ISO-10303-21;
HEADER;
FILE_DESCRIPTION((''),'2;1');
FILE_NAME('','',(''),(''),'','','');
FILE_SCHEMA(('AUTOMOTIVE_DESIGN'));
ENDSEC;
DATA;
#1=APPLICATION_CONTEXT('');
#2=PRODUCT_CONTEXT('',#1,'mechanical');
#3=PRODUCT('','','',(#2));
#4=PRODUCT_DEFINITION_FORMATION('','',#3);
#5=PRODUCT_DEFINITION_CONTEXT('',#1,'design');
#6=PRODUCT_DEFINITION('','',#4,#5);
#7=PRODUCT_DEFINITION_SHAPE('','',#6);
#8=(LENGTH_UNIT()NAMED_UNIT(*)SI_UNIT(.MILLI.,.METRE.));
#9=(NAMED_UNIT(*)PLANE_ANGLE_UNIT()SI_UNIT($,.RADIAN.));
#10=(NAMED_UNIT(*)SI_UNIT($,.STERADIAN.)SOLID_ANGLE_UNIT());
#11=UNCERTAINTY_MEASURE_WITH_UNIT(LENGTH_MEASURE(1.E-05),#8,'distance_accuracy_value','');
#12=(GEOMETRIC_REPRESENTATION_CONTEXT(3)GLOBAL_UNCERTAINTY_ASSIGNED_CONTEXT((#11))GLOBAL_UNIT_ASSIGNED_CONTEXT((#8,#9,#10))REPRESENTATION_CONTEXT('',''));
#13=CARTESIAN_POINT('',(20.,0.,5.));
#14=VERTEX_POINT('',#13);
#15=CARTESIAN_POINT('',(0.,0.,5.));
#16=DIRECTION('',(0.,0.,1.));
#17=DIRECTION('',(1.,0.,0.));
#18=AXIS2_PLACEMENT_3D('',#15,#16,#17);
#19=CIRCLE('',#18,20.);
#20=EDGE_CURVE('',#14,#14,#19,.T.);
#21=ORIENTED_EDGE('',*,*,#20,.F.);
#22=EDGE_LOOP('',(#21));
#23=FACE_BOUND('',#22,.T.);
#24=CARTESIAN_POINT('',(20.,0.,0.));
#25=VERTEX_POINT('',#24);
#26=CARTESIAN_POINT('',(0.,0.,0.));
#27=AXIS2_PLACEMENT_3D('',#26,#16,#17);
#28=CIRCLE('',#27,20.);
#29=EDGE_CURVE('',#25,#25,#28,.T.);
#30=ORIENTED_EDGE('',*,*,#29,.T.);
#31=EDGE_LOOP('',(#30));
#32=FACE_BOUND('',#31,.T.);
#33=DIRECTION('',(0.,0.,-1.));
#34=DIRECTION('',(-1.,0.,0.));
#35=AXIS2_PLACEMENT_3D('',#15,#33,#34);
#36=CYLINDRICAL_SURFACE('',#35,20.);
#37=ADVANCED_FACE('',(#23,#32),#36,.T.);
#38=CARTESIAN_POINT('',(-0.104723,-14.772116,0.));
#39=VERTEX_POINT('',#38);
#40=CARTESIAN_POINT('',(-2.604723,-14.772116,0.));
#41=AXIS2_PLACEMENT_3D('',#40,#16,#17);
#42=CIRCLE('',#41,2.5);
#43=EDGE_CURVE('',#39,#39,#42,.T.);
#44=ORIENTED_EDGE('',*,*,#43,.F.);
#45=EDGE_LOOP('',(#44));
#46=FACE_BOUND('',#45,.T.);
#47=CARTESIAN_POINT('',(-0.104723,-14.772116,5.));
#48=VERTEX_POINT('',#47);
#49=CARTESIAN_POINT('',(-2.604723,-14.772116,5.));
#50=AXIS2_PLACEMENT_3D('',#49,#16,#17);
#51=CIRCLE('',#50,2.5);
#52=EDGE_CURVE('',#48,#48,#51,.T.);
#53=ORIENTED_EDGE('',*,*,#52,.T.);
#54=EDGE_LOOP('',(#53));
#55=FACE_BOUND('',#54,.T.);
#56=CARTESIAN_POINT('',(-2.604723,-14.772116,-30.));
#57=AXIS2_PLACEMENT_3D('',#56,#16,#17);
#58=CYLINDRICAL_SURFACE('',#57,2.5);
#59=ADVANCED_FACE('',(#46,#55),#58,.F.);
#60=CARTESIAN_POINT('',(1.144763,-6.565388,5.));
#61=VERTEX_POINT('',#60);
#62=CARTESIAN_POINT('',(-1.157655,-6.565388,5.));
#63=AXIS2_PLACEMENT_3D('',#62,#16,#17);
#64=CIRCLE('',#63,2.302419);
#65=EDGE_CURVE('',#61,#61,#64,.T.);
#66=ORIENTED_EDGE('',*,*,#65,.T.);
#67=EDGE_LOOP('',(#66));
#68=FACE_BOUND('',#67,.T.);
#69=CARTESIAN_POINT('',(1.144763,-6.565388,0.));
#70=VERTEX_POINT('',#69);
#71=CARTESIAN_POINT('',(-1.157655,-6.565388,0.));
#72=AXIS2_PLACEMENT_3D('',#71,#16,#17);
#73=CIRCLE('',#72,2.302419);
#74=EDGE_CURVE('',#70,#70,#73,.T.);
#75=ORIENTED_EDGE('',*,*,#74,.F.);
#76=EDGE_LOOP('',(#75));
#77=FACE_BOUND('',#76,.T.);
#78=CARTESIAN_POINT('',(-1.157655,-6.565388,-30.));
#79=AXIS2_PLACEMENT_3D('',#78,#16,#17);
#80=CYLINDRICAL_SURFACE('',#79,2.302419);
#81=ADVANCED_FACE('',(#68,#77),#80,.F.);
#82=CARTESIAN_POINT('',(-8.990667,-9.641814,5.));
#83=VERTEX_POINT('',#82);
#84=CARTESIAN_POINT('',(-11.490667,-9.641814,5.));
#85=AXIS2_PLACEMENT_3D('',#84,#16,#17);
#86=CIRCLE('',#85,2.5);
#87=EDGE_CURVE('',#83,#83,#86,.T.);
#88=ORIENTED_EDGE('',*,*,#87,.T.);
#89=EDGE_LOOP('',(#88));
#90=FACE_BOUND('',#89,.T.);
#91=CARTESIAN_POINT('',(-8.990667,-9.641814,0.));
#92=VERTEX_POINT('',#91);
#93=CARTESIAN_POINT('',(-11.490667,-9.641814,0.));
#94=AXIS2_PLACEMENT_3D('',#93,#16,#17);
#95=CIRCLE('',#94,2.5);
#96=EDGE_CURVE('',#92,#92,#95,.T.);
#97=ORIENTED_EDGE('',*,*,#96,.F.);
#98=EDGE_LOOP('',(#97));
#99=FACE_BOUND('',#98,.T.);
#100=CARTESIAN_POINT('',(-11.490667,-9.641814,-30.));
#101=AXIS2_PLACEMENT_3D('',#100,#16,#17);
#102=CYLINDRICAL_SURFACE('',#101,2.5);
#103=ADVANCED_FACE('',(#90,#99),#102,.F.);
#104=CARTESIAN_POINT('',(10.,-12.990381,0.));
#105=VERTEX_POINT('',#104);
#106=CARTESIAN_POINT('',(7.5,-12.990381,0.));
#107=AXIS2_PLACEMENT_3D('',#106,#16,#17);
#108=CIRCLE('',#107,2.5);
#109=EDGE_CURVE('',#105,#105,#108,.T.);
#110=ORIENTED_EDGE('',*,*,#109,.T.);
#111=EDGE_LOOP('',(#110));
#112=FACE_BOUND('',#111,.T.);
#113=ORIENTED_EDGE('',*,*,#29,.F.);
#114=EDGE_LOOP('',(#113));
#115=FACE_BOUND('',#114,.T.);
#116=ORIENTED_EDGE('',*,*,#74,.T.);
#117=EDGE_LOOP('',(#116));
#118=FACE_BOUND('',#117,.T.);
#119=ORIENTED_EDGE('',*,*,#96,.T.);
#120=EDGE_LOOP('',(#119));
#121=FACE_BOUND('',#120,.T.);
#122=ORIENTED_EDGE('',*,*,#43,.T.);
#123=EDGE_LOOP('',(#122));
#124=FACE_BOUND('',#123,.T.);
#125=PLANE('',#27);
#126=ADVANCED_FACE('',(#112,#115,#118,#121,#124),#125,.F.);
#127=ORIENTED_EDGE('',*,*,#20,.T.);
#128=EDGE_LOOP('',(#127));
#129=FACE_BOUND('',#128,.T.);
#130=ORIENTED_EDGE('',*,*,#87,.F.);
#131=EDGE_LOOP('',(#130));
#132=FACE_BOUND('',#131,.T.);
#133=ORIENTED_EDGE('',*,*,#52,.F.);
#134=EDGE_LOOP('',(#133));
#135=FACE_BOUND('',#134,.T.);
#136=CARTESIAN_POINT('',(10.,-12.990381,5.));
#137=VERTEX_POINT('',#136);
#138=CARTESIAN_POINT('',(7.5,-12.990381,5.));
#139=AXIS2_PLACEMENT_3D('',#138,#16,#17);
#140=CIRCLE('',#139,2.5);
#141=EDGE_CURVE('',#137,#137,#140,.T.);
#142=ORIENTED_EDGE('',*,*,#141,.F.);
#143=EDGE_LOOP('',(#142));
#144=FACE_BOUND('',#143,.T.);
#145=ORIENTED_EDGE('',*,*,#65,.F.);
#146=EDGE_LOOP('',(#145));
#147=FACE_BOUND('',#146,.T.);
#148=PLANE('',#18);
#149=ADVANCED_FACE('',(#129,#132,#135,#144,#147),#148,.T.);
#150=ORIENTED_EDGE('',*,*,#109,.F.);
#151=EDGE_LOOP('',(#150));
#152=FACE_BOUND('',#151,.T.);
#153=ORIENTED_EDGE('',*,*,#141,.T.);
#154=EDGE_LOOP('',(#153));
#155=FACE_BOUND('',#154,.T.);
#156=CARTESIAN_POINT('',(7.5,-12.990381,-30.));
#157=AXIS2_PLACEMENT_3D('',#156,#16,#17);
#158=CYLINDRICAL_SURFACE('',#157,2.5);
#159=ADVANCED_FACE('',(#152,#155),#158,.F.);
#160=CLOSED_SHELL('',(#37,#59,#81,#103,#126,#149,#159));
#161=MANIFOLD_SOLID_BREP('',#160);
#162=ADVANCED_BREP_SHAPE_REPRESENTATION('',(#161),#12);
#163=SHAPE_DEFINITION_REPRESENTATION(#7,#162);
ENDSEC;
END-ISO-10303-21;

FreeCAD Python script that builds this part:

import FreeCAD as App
import Part
import Sketcher
from FreeCAD import Vector
Q = App.Units.Quantity

doc = App.newDocument("Part")
body = doc.addObject("PartDesign::Body", "Body")

sketch1 = body.newObject("Sketcher::SketchObject", "Sketch")
sketch1.AttachmentSupport = (doc.getObject("XY_Plane"), [""])
sketch1.MapMode = "FlatFace"
sketch1.addGeometry(Part.Circle(Vector(0, 0, 0), Vector(0, 0, 1), 20), False)
sketch1.addConstraint(Sketcher.Constraint("Coincident", 0, 3, -1, 1))
sketch1.addConstraint(Sketcher.Constraint("Diameter", 0, Q("40 mm")))
pad1 = body.newObject("PartDesign::Pad", "Pad")
pad1.Profile = sketch1
pad1.Length = 5

sketch2 = body.newObject("Sketcher::SketchObject", "Sketch001")
sketch2.AttachmentSupport = (doc.getObject("XY_Plane"), [""])
sketch2.MapMode = "FlatFace"
sketch2.AttachmentOffset = App.Placement(Vector(0, 0, 5), App.Rotation())
sketch2.addGeometry(Part.Circle(Vector(7.5, -13, 0), Vector(0, 0, 1), 2.5), False)
sketch2.addGeometry(Part.Circle(Vector(-2.6, -14.8, 0), Vector(0, 0, 1), 2.5), False)
sketch2.addGeometry(Part.Circle(Vector(-11.5, -9.6, 0), Vector(0, 0, 1), 2.5), False)
sketch2.addGeometry(Part.Circle(Vector(-1.2, -6.6, 0), Vector(0, 0, 1), 2.3), False)
sketch2.addConstraint(Sketcher.Constraint("Equal", 0, 1))
sketch2.addConstraint(Sketcher.Constraint("Equal", 1, 2))
sketch2.addConstraint(Sketcher.Constraint("Diameter", 0, Q("5 mm")))
sketch2.addConstraint(Sketcher.Constraint("DistanceX", -1, 1, 0, 3, Q("7.5 mm")))
sketch2.addConstraint(Sketcher.Constraint("Diameter", 3, Q("4.604837 mm")))
sketch2.addConstraint(Sketcher.Constraint("DistanceY", 0, 3, -1, 1, Q("12.990381 mm")))
sketch2.addConstraint(Sketcher.Constraint("DistanceY", 3, 3, -1, 1, Q("6.565388 mm")))
sketch2.addConstraint(Sketcher.Constraint("DistanceX", 2, 3, 3, 3, Q("10.333012 mm")))
sketch2.addConstraint(Sketcher.Constraint("DistanceX", 1, 3, -1, 1, Q("2.604723 mm")))
sketch2.addConstraint(Sketcher.Constraint("DistanceY", 1, 3, -1, 1, Q("14.772116 mm")))
sketch2.addConstraint(Sketcher.Constraint("DistanceX", 2, 3, -1, 1, Q("11.490667 mm")))
sketch2.addConstraint(Sketcher.Constraint("DistanceY", 2, 3, -1, 1, Q("9.641814 mm")))
pocket1 = body.newObject("PartDesign::Pocket", "Pocket")
pocket1.Profile = sketch2
pocket1.Length = 35

doc.recompute()
